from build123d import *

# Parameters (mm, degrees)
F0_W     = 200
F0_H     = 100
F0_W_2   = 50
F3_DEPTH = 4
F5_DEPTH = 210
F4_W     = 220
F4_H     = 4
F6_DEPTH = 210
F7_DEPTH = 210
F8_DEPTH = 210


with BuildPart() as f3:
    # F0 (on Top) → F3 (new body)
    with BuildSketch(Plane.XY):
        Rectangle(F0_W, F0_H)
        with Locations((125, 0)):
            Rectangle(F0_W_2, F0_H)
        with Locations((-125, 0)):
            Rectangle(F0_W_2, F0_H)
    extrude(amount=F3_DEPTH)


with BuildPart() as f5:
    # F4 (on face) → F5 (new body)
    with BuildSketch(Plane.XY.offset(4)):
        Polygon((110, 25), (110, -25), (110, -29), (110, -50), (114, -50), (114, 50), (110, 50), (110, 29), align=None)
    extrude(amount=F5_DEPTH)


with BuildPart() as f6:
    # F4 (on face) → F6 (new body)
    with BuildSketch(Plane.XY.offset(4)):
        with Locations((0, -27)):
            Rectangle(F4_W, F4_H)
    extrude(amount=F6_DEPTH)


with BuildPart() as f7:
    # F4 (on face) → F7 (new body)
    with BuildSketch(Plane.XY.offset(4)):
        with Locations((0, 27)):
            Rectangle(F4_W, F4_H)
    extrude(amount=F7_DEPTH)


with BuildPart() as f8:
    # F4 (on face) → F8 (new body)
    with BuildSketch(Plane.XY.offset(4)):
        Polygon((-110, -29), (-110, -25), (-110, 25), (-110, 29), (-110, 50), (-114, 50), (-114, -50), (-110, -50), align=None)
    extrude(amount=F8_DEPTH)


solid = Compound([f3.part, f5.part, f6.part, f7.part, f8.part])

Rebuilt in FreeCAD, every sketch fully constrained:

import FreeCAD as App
import Part
import Sketcher

doc = App.newDocument("Part")
params = doc.addObject("Spreadsheet::Sheet", "Params")
for row, (alias, value) in enumerate([
    ("sketch1_width", "300 mm"),
    ("sketch1_height", "100 mm"),
    ("pad1_length", "4 mm"),
    ("sketch2_width", "4 mm"),
    ("sketch2_height", "100 mm"),
    ("pad2_length", "210 mm"),
    ("sketch3_width", "220 mm"),
    ("sketch3_height", "4 mm"),
    ("pad3_length", "210 mm"),
    ("sketch4_width", "220 mm"),
    ("sketch4_height", "4 mm"),
    ("pad4_length", "210 mm"),
    ("sketch5_width", "4 mm"),
    ("sketch5_height", "100 mm"),
    ("pad5_length", "210 mm"),
], start=1):
    params.set(f"A{row}", alias)
    params.set(f"B{row}", "=" + value)
    params.setAlias(f"B{row}", alias)

body = doc.addObject("PartDesign::Body", "Body")

# Sketch on XY plane
sketch1 = body.newObject("Sketcher::SketchObject", "Sketch")
sketch1.AttachmentSupport = (doc.getObject("XY_Plane"), [""])
sketch1.MapMode = "FlatFace"
sketch1.addGeometry([
    Part.LineSegment(App.Vector(150, -50, 0), App.Vector(150, 50, 0)),
    Part.LineSegment(App.Vector(150, 50, 0), App.Vector(-150, 50, 0)),
    Part.LineSegment(App.Vector(-150, 50, 0), App.Vector(-150, -50, 0)),
    Part.LineSegment(App.Vector(-150, -50, 0), App.Vector(150, -50, 0)),
], False)
sketch1.addConstraint([
    Sketcher.Constraint("Coincident", 0, 2, 1, 1),
    Sketcher.Constraint("Coincident", 1, 2, 2, 1),
    Sketcher.Constraint("Coincident", 2, 2, 3, 1),
    Sketcher.Constraint("Coincident", 3, 2, 0, 1),
    Sketcher.Constraint("Vertical", 0),
    Sketcher.Constraint("Horizontal", 1),
    Sketcher.Constraint("Vertical", 2),
    Sketcher.Constraint("Horizontal", 3),
    Sketcher.Constraint("Symmetric", 0, 2, 2, 2, -1, 1),
    Sketcher.Constraint("DistanceX", 1, 2, 1, 1, 300.0),
    Sketcher.Constraint("DistanceY", 0, 1, 0, 2, 100.0),
])
sketch1.setExpression("Constraints[9]", "Params.sketch1_width")
sketch1.setExpression("Constraints[10]", "Params.sketch1_height")
pad1 = body.newObject("PartDesign::Pad", "Pad")
pad1.Profile = sketch1
pad1.setExpression("Length", "Params.pad1_length")
body2 = doc.addObject("PartDesign::Body", "Body001")

# Sketch on XY plane
sketch2 = body2.newObject("Sketcher::SketchObject", "Sketch001")
sketch2.AttachmentSupport = (doc.getObject("XY_Plane001"), [""])
sketch2.MapMode = "FlatFace"
sketch2.AttachmentOffset = App.Placement(App.Vector(0, 0, 4), App.Rotation())
sketch2.addGeometry([
    Part.LineSegment(App.Vector(110, -50, 0), App.Vector(114, -50, 0)),
    Part.LineSegment(App.Vector(114, -50, 0), App.Vector(114, 50, 0)),
    Part.LineSegment(App.Vector(114, 50, 0), App.Vector(110, 50, 0)),
    Part.LineSegment(App.Vector(110, 50, 0), App.Vector(110, -50, 0)),
], False)
sketch2.addConstraint([
    Sketcher.Constraint("Coincident", 0, 2, 1, 1),
    Sketcher.Constraint("Coincident", 1, 2, 2, 1),
    Sketcher.Constraint("Coincident", 2, 2, 3, 1),
    Sketcher.Constraint("Coincident", 3, 2, 0, 1),
    Sketcher.Constraint("Horizontal", 0),
    Sketcher.Constraint("Vertical", 1),
    Sketcher.Constraint("Horizontal", 2),
    Sketcher.Constraint("Vertical", 3),
    Sketcher.Constraint("DistanceX", 0, 1, 0, 2, 4.0),
    Sketcher.Constraint("DistanceY", 1, 1, 1, 2, 100.0),
    Sketcher.Constraint("DistanceX", -1, 1, 0, 2, 114.0),
    Sketcher.Constraint("DistanceY", 0, 2, -1, 1, 50.0),
])
sketch2.setExpression("Constraints[8]", "Params.sketch2_width")
sketch2.setExpression("Constraints[9]", "Params.sketch2_height")
pad2 = body2.newObject("PartDesign::Pad", "Pad001")
pad2.Profile = sketch2
pad2.setExpression("Length", "Params.pad2_length")
body3 = doc.addObject("PartDesign::Body", "Body002")

# Sketch on XY plane
sketch3 = body3.newObject("Sketcher::SketchObject", "Sketch002")
sketch3.AttachmentSupport = (doc.getObject("XY_Plane002"), [""])
sketch3.MapMode = "FlatFace"
sketch3.AttachmentOffset = App.Placement(App.Vector(0, 0, 4), App.Rotation())
sketch3.addGeometry([
    Part.LineSegment(App.Vector(-110, -25, 0), App.Vector(-110, -29, 0)),
    Part.LineSegment(App.Vector(-110, -29, 0), App.Vector(110, -29, 0)),
    Part.LineSegment(App.Vector(110, -29, 0), App.Vector(110, -25, 0)),
    Part.LineSegment(App.Vector(110, -25, 0), App.Vector(-110, -25, 0)),
], False)
sketch3.addConstraint([
    Sketcher.Constraint("Coincident", 0, 2, 1, 1),
    Sketcher.Constraint("Coincident", 1, 2, 2, 1),
    Sketcher.Constraint("Coincident", 2, 2, 3, 1),
    Sketcher.Constraint("Coincident", 3, 2, 0, 1),
    Sketcher.Constraint("Vertical", 0),
    Sketcher.Constraint("Horizontal", 1),
    Sketcher.Constraint("Vertical", 2),
    Sketcher.Constraint("Horizontal", 3),
    Sketcher.Constraint("DistanceX", 1, 1, 1, 2, 220.0),
    Sketcher.Constraint("DistanceY", 0, 2, 0, 1, 4.0),
    Sketcher.Constraint("DistanceX", 0, 2, -1, 1, 110.0),
    Sketcher.Constraint("DistanceY", 0, 2, -1, 1, 29.0),
])
sketch3.setExpression("Constraints[8]", "Params.sketch3_width")
sketch3.setExpression("Constraints[9]", "Params.sketch3_height")
pad3 = body3.newObject("PartDesign::Pad", "Pad002")
pad3.Profile = sketch3
pad3.setExpression("Length", "Params.pad3_length")
body4 = doc.addObject("PartDesign::Body", "Body003")

# Sketch on XY plane
sketch4 = body4.newObject("Sketcher::SketchObject", "Sketch003")
sketch4.AttachmentSupport = (doc.getObject("XY_Plane003"), [""])
sketch4.MapMode = "FlatFace"
sketch4.AttachmentOffset = App.Placement(App.Vector(0, 0, 4), App.Rotation())
sketch4.addGeometry([
    Part.LineSegment(App.Vector(-110, 29, 0), App.Vector(-110, 25, 0)),
    Part.LineSegment(App.Vector(-110, 25, 0), App.Vector(110, 25, 0)),
    Part.LineSegment(App.Vector(110, 25, 0), App.Vector(110, 29, 0)),
    Part.LineSegment(App.Vector(110, 29, 0), App.Vector(-110, 29, 0)),
], False)
sketch4.addConstraint([
    Sketcher.Constraint("Coincident", 0, 2, 1, 1),
    Sketcher.Constraint("Coincident", 1, 2, 2, 1),
    Sketcher.Constraint("Coincident", 2, 2, 3, 1),
    Sketcher.Constraint("Coincident", 3, 2, 0, 1),
    Sketcher.Constraint("Vertical", 0),
    Sketcher.Constraint("Horizontal", 1),
    Sketcher.Constraint("Vertical", 2),
    Sketcher.Constraint("Horizontal", 3),
    Sketcher.Constraint("DistanceX", 1, 1, 1, 2, 220.0),
    Sketcher.Constraint("DistanceY", 0, 2, 0, 1, 4.0),
    Sketcher.Constraint("DistanceX", 0, 2, -1, 1, 110.0),
    Sketcher.Constraint("DistanceY", -1, 1, 0, 2, 25.0),
])
sketch4.setExpression("Constraints[8]", "Params.sketch4_width")
sketch4.setExpression("Constraints[9]", "Params.sketch4_height")
pad4 = body4.newObject("PartDesign::Pad", "Pad003")
pad4.Profile = sketch4
pad4.setExpression("Length", "Params.pad4_length")
body5 = doc.addObject("PartDesign::Body", "Body004")

# Sketch on XY plane
sketch5 = body5.newObject("Sketcher::SketchObject", "Sketch004")
sketch5.AttachmentSupport = (doc.getObject("XY_Plane004"), [""])
sketch5.MapMode = "FlatFace"
sketch5.AttachmentOffset = App.Placement(App.Vector(0, 0, 4), App.Rotation())
sketch5.addGeometry([
    Part.LineSegment(App.Vector(-110, 50, 0), App.Vector(-114, 50, 0)),
    Part.LineSegment(App.Vector(-114, 50, 0), App.Vector(-114, -50, 0)),
    Part.LineSegment(App.Vector(-114, -50, 0), App.Vector(-110, -50, 0)),
    Part.LineSegment(App.Vector(-110, -50, 0), App.Vector(-110, 50, 0)),
], False)
sketch5.addConstraint([
    Sketcher.Constraint("Coincident", 0, 2, 1, 1),
    Sketcher.Constraint("Coincident", 1, 2, 2, 1),
    Sketcher.Constraint("Coincident", 2, 2, 3, 1),
    Sketcher.Constraint("Coincident", 3, 2, 0, 1),
    Sketcher.Constraint("Horizontal", 0),
    Sketcher.Constraint("Vertical", 1),
    Sketcher.Constraint("Horizontal", 2),
    Sketcher.Constraint("Vertical", 3),
    Sketcher.Constraint("DistanceX", 0, 2, 0, 1, 4.0),
    Sketcher.Constraint("DistanceY", 1, 2, 1, 1, 100.0),
    Sketcher.Constraint("DistanceX", 0, 2, -1, 1, 114.0),
    Sketcher.Constraint("DistanceY", -1, 1, 0, 2, 50.0),
])
sketch5.setExpression("Constraints[8]", "Params.sketch5_width")
sketch5.setExpression("Constraints[9]", "Params.sketch5_height")
pad5 = body5.newObject("PartDesign::Pad", "Pad004")
pad5.Profile = sketch5
pad5.setExpression("Length", "Params.pad5_length")

doc.recompute()
